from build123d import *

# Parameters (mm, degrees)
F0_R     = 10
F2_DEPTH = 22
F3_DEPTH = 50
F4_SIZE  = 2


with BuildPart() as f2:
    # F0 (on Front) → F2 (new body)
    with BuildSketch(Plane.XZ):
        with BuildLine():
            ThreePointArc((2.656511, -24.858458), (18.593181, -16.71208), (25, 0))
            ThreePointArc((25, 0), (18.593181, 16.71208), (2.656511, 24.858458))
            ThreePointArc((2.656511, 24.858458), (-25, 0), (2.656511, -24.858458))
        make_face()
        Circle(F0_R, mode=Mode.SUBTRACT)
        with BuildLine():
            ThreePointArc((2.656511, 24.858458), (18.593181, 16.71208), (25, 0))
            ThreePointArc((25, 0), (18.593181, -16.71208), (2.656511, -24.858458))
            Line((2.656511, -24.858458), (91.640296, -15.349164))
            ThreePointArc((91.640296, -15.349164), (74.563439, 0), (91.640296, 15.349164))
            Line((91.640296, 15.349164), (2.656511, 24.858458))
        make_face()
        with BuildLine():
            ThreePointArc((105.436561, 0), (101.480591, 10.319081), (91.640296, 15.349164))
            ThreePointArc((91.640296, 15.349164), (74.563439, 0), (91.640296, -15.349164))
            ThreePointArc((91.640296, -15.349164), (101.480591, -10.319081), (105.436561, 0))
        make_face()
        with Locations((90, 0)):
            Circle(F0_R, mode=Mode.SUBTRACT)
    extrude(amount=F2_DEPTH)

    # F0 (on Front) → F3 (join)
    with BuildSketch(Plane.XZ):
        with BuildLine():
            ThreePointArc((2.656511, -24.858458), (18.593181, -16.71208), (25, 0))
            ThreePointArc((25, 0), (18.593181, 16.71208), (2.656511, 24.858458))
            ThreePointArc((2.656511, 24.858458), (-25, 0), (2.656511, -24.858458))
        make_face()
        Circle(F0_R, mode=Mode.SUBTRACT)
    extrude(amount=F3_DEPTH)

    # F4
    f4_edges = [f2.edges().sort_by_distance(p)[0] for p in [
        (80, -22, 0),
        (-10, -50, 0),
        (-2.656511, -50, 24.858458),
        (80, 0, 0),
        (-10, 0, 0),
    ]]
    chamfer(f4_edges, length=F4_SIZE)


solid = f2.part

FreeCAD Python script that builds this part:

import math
import FreeCAD as App
import Part
import Sketcher

V = App.Vector
Q = App.Units.Quantity


def edges_at(feature, points):
    """Names of the edges that pass closest to the given points."""
    edges = feature.Shape.Edges
    near = lambda p: min(range(len(edges)), key=lambda i: edges[i].distToShape(Part.Vertex(*p))[0])
    return sorted({f"Edge{near(p) + 1}" for p in points})

doc = App.newDocument("Part")
params = doc.addObject("Spreadsheet::Sheet", "Params")
for row, (alias, value) in enumerate([
    ("sketch1_diameter", "20 mm"),
    ("sketch1_radius", "25 mm"),
    ("pad1_length", "22 mm"),
    ("sketch2_diameter", "20 mm"),
    ("sketch2_radius", "25 mm"),
    ("pad2_length", "50 mm"),
    ("chamfer_size", "2 mm"),
], start=1):
    params.set(f"A{row}", alias)
    params.set(f"B{row}", "=" + value)
    params.setAlias(f"B{row}", alias)

body = doc.addObject("PartDesign::Body", "Body")

# Sketch on XZ plane
sketch1 = doc.addObject("Sketcher::SketchObject", "Sketch")
body.addObject(sketch1)
sketch1.AttachmentSupport = (doc.XZ_Plane, [""])
sketch1.MapMode = "FlatFace"
sketch1.addGeometry(Part.ArcOfCircle(Part.Circle(V(0, 0, 0), V(0, 0, 1), 25), math.radians(84), math.radians(276)), False)
sketch1.addGeometry(Part.LineSegment(V(3, -25, 0), V(92, -15, 0)), False)
sketch1.addGeometry(Part.ArcOfCircle(Part.Circle(V(90, 0, 0), V(0, 0, 1), 15), math.radians(-84), math.radians(0)), False)
sketch1.addGeometry(Part.ArcOfCircle(Part.Circle(V(90, 0, 0), V(0, 0, 1), 15), math.radians(0), math.radians(84)), False)
sketch1.addGeometry(Part.LineSegment(V(92, 15, 0), V(3, 25, 0)), False)
sketch1.addGeometry(Part.Circle(V(0, 0, 0), V(0, 0, 1), 10), False)
sketch1.addGeometry(Part.Circle(V(90, 0, 0), V(0, 0, 1), 10), False)
sketch1.addConstraint(Sketcher.Constraint("Tangent", 0, 2, 1, 1))
sketch1.addConstraint(Sketcher.Constraint("Tangent", 1, 2, 2, 1))
sketch1.addConstraint(Sketcher.Constraint("Tangent", 2, 2, 3, 1))
sketch1.addConstraint(Sketcher.Constraint("Tangent", 3, 2, 4, 1))
sketch1.addConstraint(Sketcher.Constraint("Tangent", 4, 2, 0, 1))
sketch1.addConstraint(Sketcher.Constraint("Coincident", 0, 3, -1, 1))
sketch1.addConstraint(Sketcher.Constraint("Coincident", 5, 3, -1, 1))
sketch1.addConstraint(Sketcher.Constraint("Coincident", 6, 3, 2, 3))
sketch1.addConstraint(Sketcher.Constraint("Equal", 2, 3))
sketch1.addConstraint(Sketcher.Constraint("Equal", 5, 6))
sketch1.addConstraint(Sketcher.Constraint("PointOnObject", 2, 3, -1))
sketch1.addConstraint(Sketcher.Constraint("PointOnObject", 2, 2, -1))
sketch1.addConstraint(Sketcher.Constraint("Diameter", 5, Q("20 mm")))
sketch1.addConstraint(Sketcher.Constraint("Radius", 0, Q("25 mm")))
sketch1.addConstraint(Sketcher.Constraint("DistanceX", -1, 1, 2, 3, Q("89.999999 mm")))
sketch1.addConstraint(Sketcher.Constraint("Radius", 2, Q("15.436562 mm")))
sketch1.setExpression("Constraints[12]", "Params.sketch1_diameter")
sketch1.setExpression("Constraints[13]", "Params.sketch1_radius")
pad1 = doc.addObject("PartDesign::Pad", "Pad")
body.addObject(pad1)
pad1.Profile = sketch1
pad1.setExpression("Length", "Params.pad1_length")

# Sketch on XZ plane
sketch2 = doc.addObject("Sketcher::SketchObject", "Sketch001")
body.addObject(sketch2)
sketch2.AttachmentSupport = (doc.XZ_Plane, [""])
sketch2.MapMode = "FlatFace"
sketch2.addGeometry(Part.ArcOfCircle(Part.Circle(V(0, 0, 0), V(0, 0, 1), 25), math.radians(-84), math.radians(0)), False)
sketch2.addGeometry(Part.ArcOfCircle(Part.Circle(V(0, 0, 0), V(0, 0, 1), 25), math.radians(0), math.radians(84)), False)
sketch2.addGeometry(Part.ArcOfCircle(Part.Circle(V(0, 0, 0), V(0, 0, 1), 25), math.radians(84), math.radians(276)), False)
sketch2.addGeometry(Part.Circle(V(0, 0, 0), V(0, 0, 1), 10), False)
sketch2.addConstraint(Sketcher.Constraint("Tangent", 0, 2, 1, 1))
sketch2.addConstraint(Sketcher.Constraint("Tangent", 1, 2, 2, 1))
sketch2.addConstraint(Sketcher.Constraint("Tangent", 2, 2, 0, 1))
sketch2.addConstraint(Sketcher.Constraint("Coincident", 0, 3, -1, 1))
sketch2.addConstraint(Sketcher.Constraint("Coincident", 3, 3, -1, 1))
sketch2.addConstraint(Sketcher.Constraint("PointOnObject", 0, 2, -1))
sketch2.addConstraint(Sketcher.Constraint("Vertical", 1, 2, 2, 2))
sketch2.addConstraint(Sketcher.Constraint("Diameter", 3, Q("20 mm")))
sketch2.addConstraint(Sketcher.Constraint("Radius", 0, Q("25 mm")))
sketch2.addConstraint(Sketcher.Constraint("DistanceX", -1, 1, 1, 2, Q("2.656511 mm")))
sketch2.setExpression("Constraints[7]", "Params.sketch2_diameter")
sketch2.setExpression("Constraints[8]", "Params.sketch2_radius")
pad2 = doc.addObject("PartDesign::Pad", "Pad001")
body.addObject(pad2)
pad2.Profile = sketch2
pad2.setExpression("Length", "Params.pad2_length")
doc.recompute()

chamfer = doc.addObject("PartDesign::Chamfer", "Chamfer")
body.addObject(chamfer)
chamfer.Base = (pad2, edges_at(pad2, [
    (80, -22, 0),
    (-10, -50, 0),
    (-25, -50, 0),
    (80, 0, 0),
    (-10, 0, 0),
]))
chamfer.setExpression("Size", "Params.chamfer_size")

doc.recompute()
